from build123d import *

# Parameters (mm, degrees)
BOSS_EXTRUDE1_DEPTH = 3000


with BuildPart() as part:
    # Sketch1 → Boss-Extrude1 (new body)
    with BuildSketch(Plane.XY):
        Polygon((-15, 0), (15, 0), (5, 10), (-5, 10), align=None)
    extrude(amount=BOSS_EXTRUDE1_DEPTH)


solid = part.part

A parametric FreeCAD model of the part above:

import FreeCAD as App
import Part
import Sketcher

V = App.Vector
Q = App.Units.Quantity

doc = App.newDocument("Part")
params = doc.addObject("Spreadsheet::Sheet", "Params")
for row, (alias, value) in enumerate([
    ("sketch1_width", "30 mm"),
    ("sketch1_width2", "10 mm"),
    ("pad1_length", "3000 mm"),
], start=1):
    params.set(f"A{row}", alias)
    params.set(f"B{row}", "=" + value)
    params.setAlias(f"B{row}", alias)

body = doc.addObject("PartDesign::Body", "Body")

sketch1 = doc.addObject("Sketcher::SketchObject", "Sketch")
body.addObject(sketch1)
sketch1.AttachmentSupport = (doc.XY_Plane, [""])
sketch1.MapMode = "FlatFace"
sketch1.addGeometry([
    Part.LineSegment(V(-15, 0, 0), V(15, 0, 0)),
    Part.LineSegment(V(15, 0, 0), V(5, 10, 0)),
    Part.LineSegment(V(5, 10, 0), V(-5, 10, 0)),
    Part.LineSegment(V(-5, 10, 0), V(-15, 0, 0)),
], False)
sketch1.addConstraint([
    Sketcher.Constraint("Coincident", 0, 2, 1, 1),
    Sketcher.Constraint("Coincident", 1, 2, 2, 1),
    Sketcher.Constraint("Coincident", 2, 2, 3, 1),
    Sketcher.Constraint("Coincident", 3, 2, 0, 1),
    Sketcher.Constraint("Horizontal", 0),
    Sketcher.Constraint("Horizontal", 2),
    Sketcher.Constraint("Symmetric", 0, 2, 3, 2, -1, 1),
    Sketcher.Constraint("Perpendicular", 1, 3),
    Sketcher.Constraint("Equal", 1, 3),
    Sketcher.Constraint("DistanceX", 0, 1, 0, 2, Q("30 mm")),
    Sketcher.Constraint("DistanceX", 2, 2, 2, 1, Q("10 mm")),
])
sketch1.setExpression("Constraints[9]", "Params.sketch1_width")
sketch1.setExpression("Constraints[10]", "Params.sketch1_width2")
pad1 = doc.addObject("PartDesign::Pad", "Pad")
body.addObject(pad1)
pad1.Profile = sketch1
pad1.setExpression("Length", "Params.pad1_length")

doc.recompute()
